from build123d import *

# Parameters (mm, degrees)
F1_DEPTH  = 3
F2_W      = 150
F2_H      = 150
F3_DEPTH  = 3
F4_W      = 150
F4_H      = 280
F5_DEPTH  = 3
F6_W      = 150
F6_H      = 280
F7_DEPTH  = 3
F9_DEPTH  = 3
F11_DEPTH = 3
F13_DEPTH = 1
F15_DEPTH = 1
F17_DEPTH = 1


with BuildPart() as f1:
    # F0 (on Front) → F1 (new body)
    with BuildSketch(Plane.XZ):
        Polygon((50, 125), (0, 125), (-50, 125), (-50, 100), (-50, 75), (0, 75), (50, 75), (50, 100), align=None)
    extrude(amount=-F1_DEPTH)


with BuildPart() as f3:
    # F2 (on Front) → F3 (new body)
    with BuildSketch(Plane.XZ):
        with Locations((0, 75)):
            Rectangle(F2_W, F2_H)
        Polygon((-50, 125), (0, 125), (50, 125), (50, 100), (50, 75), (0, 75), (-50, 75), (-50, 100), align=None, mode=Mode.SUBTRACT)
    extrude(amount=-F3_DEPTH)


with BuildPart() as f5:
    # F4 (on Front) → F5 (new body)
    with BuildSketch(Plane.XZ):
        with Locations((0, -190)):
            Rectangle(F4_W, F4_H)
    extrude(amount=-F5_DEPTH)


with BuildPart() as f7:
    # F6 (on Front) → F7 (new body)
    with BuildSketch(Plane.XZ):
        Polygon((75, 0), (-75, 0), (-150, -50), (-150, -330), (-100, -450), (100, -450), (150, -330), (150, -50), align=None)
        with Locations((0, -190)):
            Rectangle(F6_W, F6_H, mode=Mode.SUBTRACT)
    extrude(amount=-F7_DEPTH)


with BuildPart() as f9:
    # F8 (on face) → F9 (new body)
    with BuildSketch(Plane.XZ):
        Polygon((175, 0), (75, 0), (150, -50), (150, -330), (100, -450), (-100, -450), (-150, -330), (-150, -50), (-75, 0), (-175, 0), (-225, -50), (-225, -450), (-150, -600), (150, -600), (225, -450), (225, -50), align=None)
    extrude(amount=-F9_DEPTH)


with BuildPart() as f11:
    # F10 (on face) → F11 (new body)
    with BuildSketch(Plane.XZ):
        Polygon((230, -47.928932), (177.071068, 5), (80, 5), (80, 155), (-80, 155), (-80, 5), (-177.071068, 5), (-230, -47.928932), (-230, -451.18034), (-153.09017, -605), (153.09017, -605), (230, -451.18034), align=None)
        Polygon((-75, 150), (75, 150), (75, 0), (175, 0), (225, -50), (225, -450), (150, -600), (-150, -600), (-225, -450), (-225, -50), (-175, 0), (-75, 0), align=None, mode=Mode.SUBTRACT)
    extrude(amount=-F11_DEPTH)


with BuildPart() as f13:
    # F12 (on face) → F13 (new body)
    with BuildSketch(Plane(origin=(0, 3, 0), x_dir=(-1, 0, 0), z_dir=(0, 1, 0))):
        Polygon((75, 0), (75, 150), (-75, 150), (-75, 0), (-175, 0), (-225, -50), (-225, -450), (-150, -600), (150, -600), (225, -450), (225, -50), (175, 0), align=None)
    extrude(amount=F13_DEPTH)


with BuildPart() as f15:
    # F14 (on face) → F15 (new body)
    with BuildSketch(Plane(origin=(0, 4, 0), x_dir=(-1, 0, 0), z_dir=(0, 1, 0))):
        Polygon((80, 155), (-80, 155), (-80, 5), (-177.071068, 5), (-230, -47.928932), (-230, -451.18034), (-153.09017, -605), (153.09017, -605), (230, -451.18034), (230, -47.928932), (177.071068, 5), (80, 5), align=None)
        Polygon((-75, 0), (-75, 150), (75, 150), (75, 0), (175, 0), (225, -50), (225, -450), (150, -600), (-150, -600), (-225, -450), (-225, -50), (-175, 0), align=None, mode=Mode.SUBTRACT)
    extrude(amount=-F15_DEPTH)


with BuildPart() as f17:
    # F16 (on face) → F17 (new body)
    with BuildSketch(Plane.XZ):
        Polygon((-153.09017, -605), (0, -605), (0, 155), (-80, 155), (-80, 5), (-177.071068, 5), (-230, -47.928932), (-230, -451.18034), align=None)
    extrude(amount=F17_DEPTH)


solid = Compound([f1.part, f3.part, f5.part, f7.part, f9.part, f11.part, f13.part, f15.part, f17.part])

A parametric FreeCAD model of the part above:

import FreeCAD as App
import Part
import Sketcher

V = App.Vector
Q = App.Units.Quantity


def add_polygon(sketch, points):
    """Adds a closed chain of lines whose ends are joined by coincident constraints."""
    first, n = sketch.GeometryCount, len(points)
    for a, b in zip(points, points[1:] + points[:1]):
        sketch.addGeometry(Part.LineSegment(App.Vector(*a, 0), App.Vector(*b, 0)), False)
    for i in range(n):
        sketch.addConstraint(Sketcher.Constraint("Coincident", first + i, 2, first + (i + 1) % n, 1))

doc = App.newDocument("Part")
body = doc.addObject("PartDesign::Body", "Body")

sketch1 = body.newObject("Sketcher::SketchObject", "Sketch")
sketch1.AttachmentSupport = (doc.getObject("XZ_Plane"), [""])
sketch1.MapMode = "FlatFace"
add_polygon(sketch1, [(50, 125), (-50, 125), (-50, 75), (50, 75)])
sketch1.addConstraint(Sketcher.Constraint("Horizontal", 0))
sketch1.addConstraint(Sketcher.Constraint("Vertical", 1))
sketch1.addConstraint(Sketcher.Constraint("Horizontal", 2))
sketch1.addConstraint(Sketcher.Constraint("Vertical", 3))
sketch1.addConstraint(Sketcher.Constraint("DistanceX", 0, 2, 0, 1, 100.0))
sketch1.addConstraint(Sketcher.Constraint("DistanceY", 1, 2, 1, 1, 50.0))
sketch1.addConstraint(Sketcher.Constraint("DistanceX", 0, 2, -1, 1, 50.0))
sketch1.addConstraint(Sketcher.Constraint("DistanceY", -1, 1, 0, 2, 125.0))
pad1 = body.newObject("PartDesign::Pad", "Pad")
pad1.Profile = sketch1
pad1.Length = 3
pad1.Reversed = True
body2 = doc.addObject("PartDesign::Body", "Body001")

sketch2 = body2.newObject("Sketcher::SketchObject", "Sketch001")
sketch2.AttachmentSupport = (doc.getObject("XZ_Plane001"), [""])
sketch2.MapMode = "FlatFace"
add_polygon(sketch2, [(-75, 150), (-75, 0), (75, 0), (75, 150)])
add_polygon(sketch2, [(-50, 75), (-50, 125), (50, 125), (50, 75)])
sketch2.addConstraint(Sketcher.Constraint("Vertical", 0))
sketch2.addConstraint(Sketcher.Constraint("Horizontal", 1))
sketch2.addConstraint(Sketcher.Constraint("Vertical", 2))
sketch2.addConstraint(Sketcher.Constraint("Horizontal", 3))
sketch2.addConstraint(Sketcher.Constraint("Vertical", 4))
sketch2.addConstraint(Sketcher.Constraint("Horizontal", 5))
sketch2.addConstraint(Sketcher.Constraint("Vertical", 6))
sketch2.addConstraint(Sketcher.Constraint("Horizontal", 7))
sketch2.addConstraint(Sketcher.Constraint("Symmetric", 0, 2, 1, 2, -1, 1))
sketch2.addConstraint(Sketcher.Constraint("Equal", 3, 0))
sketch2.addConstraint(Sketcher.Constraint("DistanceX", 1, 1, 1, 2, 150.0))
sketch2.addConstraint(Sketcher.Constraint("DistanceX", 5, 1, 5, 2, 100.0))
sketch2.addConstraint(Sketcher.Constraint("DistanceY", 4, 1, 4, 2, 50.0))
sketch2.addConstraint(Sketcher.Constraint("DistanceX", 4, 2, -1, 1, 50.0))
sketch2.addConstraint(Sketcher.Constraint("DistanceY", -1, 1, 4, 2, 125.0))
pad2 = body2.newObject("PartDesign::Pad", "Pad001")
pad2.Profile = sketch2
pad2.Length = 3
pad2.Reversed = True
body3 = doc.addObject("PartDesign::Body", "Body002")

sketch3 = body3.newObject("Sketcher::SketchObject", "Sketch002")
sketch3.AttachmentSupport = (doc.getObject("XZ_Plane002"), [""])
sketch3.MapMode = "FlatFace"
add_polygon(sketch3, [(-75, -50), (-75, -330), (75, -330), (75, -50)])
sketch3.addConstraint(Sketcher.Constraint("Vertical", 0))
sketch3.addConstraint(Sketcher.Constraint("Horizontal", 1))
sketch3.addConstraint(Sketcher.Constraint("Vertical", 2))
sketch3.addConstraint(Sketcher.Constraint("Horizontal", 3))
sketch3.addConstraint(Sketcher.Constraint("DistanceX", 1, 1, 1, 2, 150.0))
sketch3.addConstraint(Sketcher.Constraint("DistanceY", 0, 2, 0, 1, 280.0))
sketch3.addConstraint(Sketcher.Constraint("DistanceX", 0, 2, -1, 1, 75.0))
sketch3.addConstraint(Sketcher.Constraint("DistanceY", 0, 2, -1, 1, 330.0))
pad3 = body3.newObject("PartDesign::Pad", "Pad002")
pad3.Profile = sketch3
pad3.Length = 3
pad3.Reversed = True
body4 = doc.addObject("PartDesign::Body", "Body003")

sketch4 = body4.newObject("Sketcher::SketchObject", "Sketch003")
sketch4.AttachmentSupport = (doc.getObject("XZ_Plane003"), [""])
sketch4.MapMode = "FlatFace"
add_polygon(sketch4, [(75, 0), (-75, 0), (-150, -50), (-150, -330), (-100, -450), (100, -450), (150, -330), (150, -50)])
add_polygon(sketch4, [(75, -330), (-75, -330), (-75, -50), (75, -50)])
sketch4.addConstraint(Sketcher.Constraint("Horizontal", 0))
sketch4.addConstraint(Sketcher.Constraint("Vertical", 2))
sketch4.addConstraint(Sketcher.Constraint("Horizontal", 4))
sketch4.addConstraint(Sketcher.Constraint("Vertical", 6))
sketch4.addConstraint(Sketcher.Constraint("Horizontal", 8))
sketch4.addConstraint(Sketcher.Constraint("Vertical", 9))
sketch4.addConstraint(Sketcher.Constraint("Horizontal", 10))
sketch4.addConstraint(Sketcher.Constraint("Vertical", 11))
sketch4.addConstraint(Sketcher.Constraint("Symmetric", 0, 2, 7, 2, -1, 1))
sketch4.addConstraint(Sketcher.Constraint("Symmetric", 2, 2, 5, 2, -2))
sketch4.addConstraint(Sketcher.Constraint("Horizontal", 1, 2, 6, 2))
sketch4.addConstraint(Sketcher.Constraint("Horizontal", 5, 2, 8, 2))
sketch4.addConstraint(Sketcher.Constraint("Horizontal", 6, 2, 9, 2))
sketch4.addConstraint(Sketcher.Constraint("Vertical", 0, 2, 8, 2))
sketch4.addConstraint(Sketcher.Constraint("Vertical", 7, 2, 10, 2))
sketch4.addConstraint(Sketcher.Constraint("Equal", 3, 5))
sketch4.addConstraint(Sketcher.Constraint("DistanceX", 0, 2, 0, 1, 150.0))
sketch4.addConstraint(Sketcher.Constraint("DistanceX", 4, 1, 4, 2, 200.0))
sketch4.addConstraint(Sketcher.Constraint("DistanceY", 2, 2, 2, 1, 280.0))
sketch4.addConstraint(Sketcher.Constraint("Distance", 3, 130.0))
sketch4.addConstraint(Sketcher.Constraint("DistanceX", 1, 2, -1, 1, 150.0))
sketch4.addConstraint(Sketcher.Constraint("DistanceY", 1, 2, -1, 1, 50.0))
pad4 = body4.newObject("PartDesign::Pad", "Pad003")
pad4.Profile = sketch4
pad4.Length = 3
pad4.Reversed = True
body5 = doc.addObject("PartDesign::Body", "Body004")

sketch5 = body5.newObject("Sketcher::SketchObject", "Sketch004")
sketch5.AttachmentSupport = (doc.getObject("XZ_Plane004"), [""])
sketch5.MapMode = "FlatFace"
add_polygon(sketch5, [(175, 0), (75, 0), (150, -50), (150, -330), (100, -450), (-100, -450), (-150, -330), (-150, -50), (-75, 0), (-175, 0), (-225, -50), (-225, -450), (-150, -600), (150, -600), (225, -450), (225, -50)])
sketch5.addConstraint(Sketcher.Constraint("Horizontal", 0))
sketch5.addConstraint(Sketcher.Constraint("Vertical", 2))
sketch5.addConstraint(Sketcher.Constraint("Horizontal", 4))
sketch5.addConstraint(Sketcher.Constraint("Vertical", 6))
sketch5.addConstraint(Sketcher.Constraint("Horizontal", 8))
sketch5.addConstraint(Sketcher.Constraint("Vertical", 10))
sketch5.addConstraint(Sketcher.Constraint("Horizontal", 12))
sketch5.addConstraint(Sketcher.Constraint("Vertical", 14))
sketch5.addConstraint(Sketcher.Constraint("Symmetric", 0, 2, 7, 2, -1, 1))
sketch5.addConstraint(Sketcher.Constraint("Symmetric", 2, 2, 5, 2, -2))
sketch5.addConstraint(Sketcher.Constraint("Symmetric", 10, 2, 13, 2, -2))
sketch5.addConstraint(Sketcher.Constraint("Symmetric", 8, 2, 15, 2, -2))
sketch5.addConstraint(Sketcher.Constraint("Perpendicular", 9, 15))
sketch5.addConstraint(Sketcher.Constraint("Horizontal", 1, 2, 6, 2))
sketch5.addConstraint(Sketcher.Constraint("Horizontal", 6, 2, 9, 2))
sketch5.addConstraint(Sketcher.Constraint("Horizontal", 4, 2, 10, 2))
sketch5.addConstraint(Sketcher.Constraint("Horizontal", 9, 2, 14, 2))
sketch5.addConstraint(Sketcher.Constraint("Vertical", 6, 2, 11, 2))
sketch5.addConstraint(Sketcher.Constraint("Vertical", 2, 2, 12, 2))
sketch5.addConstraint(Sketcher.Constraint("Equal", 3, 5))
sketch5.addConstraint(Sketcher.Constraint("DistanceX", 0, 2, 0, 1, 100.0))
sketch5.addConstraint(Sketcher.Constraint("DistanceX", 4, 2, 4, 1, 200.0))
sketch5.addConstraint(Sketcher.Constraint("DistanceX", 12, 1, 12, 2, 300.0))
sketch5.addConstraint(Sketcher.Constraint("DistanceY", 2, 2, 2, 1, 280.0))
sketch5.addConstraint(Sketcher.Constraint("DistanceY", 10, 2, 10, 1, 400.0))
sketch5.addConstraint(Sketcher.Constraint("DistanceX", -1, 1, 0, 2, 75.0))
sketch5.addConstraint(Sketcher.Constraint("DistanceY", 1, 2, -1, 1, 50.0))
sketch5.addConstraint(Sketcher.Constraint("DistanceY", 11, 2, -1, 1, 600.0))
pad5 = body5.newObject("PartDesign::Pad", "Pad004")
pad5.Profile = sketch5
pad5.Length = 3
pad5.Reversed = True
body6 = doc.addObject("PartDesign::Body", "Body005")

sketch6 = body6.newObject("Sketcher::SketchObject", "Sketch005")
sketch6.AttachmentSupport = (doc.getObject("XZ_Plane005"), [""])
sketch6.MapMode = "FlatFace"
add_polygon(sketch6, [(230, -48), (177, 5), (80, 5), (80, 155), (-80, 155), (-80, 5), (-177, 5), (-230, -48), (-230, -451), (-153, -605), (153, -605), (230, -451)])
add_polygon(sketch6, [(-75, 0), (-75, 150), (75, 150), (75, 0), (175, 0), (225, -50), (225, -450), (150, -600), (-150, -600), (-225, -450), (-225, -50), (-175, 0)])
sketch6.addConstraint(Sketcher.Constraint("Horizontal", 1))
sketch6.addConstraint(Sketcher.Constraint("Vertical", 2))
sketch6.addConstraint(Sketcher.Constraint("Horizontal", 3))
sketch6.addConstraint(Sketcher.Constraint("Vertical", 4))
sketch6.addConstraint(Sketcher.Constraint("Horizontal", 5))
sketch6.addConstraint(Sketcher.Constraint("Vertical", 7))
sketch6.addConstraint(Sketcher.Constraint("Horizontal", 9))
sketch6.addConstraint(Sketcher.Constraint("Vertical", 11))
sketch6.addConstraint(Sketcher.Constraint("Vertical", 12))
sketch6.addConstraint(Sketcher.Constraint("Horizontal", 13))
sketch6.addConstraint(Sketcher.Constraint("Vertical", 14))
sketch6.addConstraint(Sketcher.Constraint("Horizontal", 15))
sketch6.addConstraint(Sketcher.Constraint("Vertical", 17))
sketch6.addConstraint(Sketcher.Constraint("Horizontal", 19))
sketch6.addConstraint(Sketcher.Constraint("Vertical", 21))
sketch6.addConstraint(Sketcher.Constraint("Horizontal", 23))
sketch6.addConstraint(Sketcher.Constraint("Symmetric", 15, 2, 22, 2, -1, 1))
sketch6.addConstraint(Sketcher.Constraint("Symmetric", 1, 2, 4, 2, -2))
sketch6.addConstraint(Sketcher.Constraint("Symmetric", 7, 2, 10, 2, -2))
sketch6.addConstraint(Sketcher.Constraint("Symmetric", 17, 2, 20, 2, -2))
sketch6.addConstraint(Sketcher.Constraint("Symmetric", 14, 2, 23, 2, -2))
sketch6.addConstraint(Sketcher.Constraint("Perpendicular", 0, 6))
sketch6.addConstraint(Sketcher.Constraint("Perpendicular", 6, 16))
sketch6.addConstraint(Sketcher.Constraint("Parallel", 10, 18))
sketch6.addConstraint(Sketcher.Constraint("Parallel", 8, 20))
sketch6.addConstraint(Sketcher.Constraint("Perpendicular", 16, 22))
sketch6.addConstraint(Sketcher.Constraint("Horizontal", 6, 2, 11, 2))
sketch6.addConstraint(Sketcher.Constraint("Horizontal", 16, 2, 21, 2))
sketch6.addConstraint(Sketcher.Constraint("Equal", 13, 2))
sketch6.addConstraint(Sketcher.Constraint("Equal", 4, 12))
sketch6.addConstraint(Sketcher.Constraint("Equal", 8, 10))
sketch6.addConstraint(Sketcher.Constraint("DistanceX", 3, 2, 3, 1, 160.0))
sketch6.addConstraint(Sketcher.Constraint("DistanceX", 13, 1, 13, 2, 150.0))
sketch6.addConstraint(Sketcher.Constraint("DistanceX", 15, 1, 15, 2, 100.0))
sketch6.addConstraint(Sketcher.Constraint("DistanceX", 19, 2, 19, 1, 300.0))
sketch6.addConstraint(Sketcher.Constraint("DistanceY", 17, 2, 17, 1, 400.0))
sketch6.addConstraint(Sketcher.Constraint("DistanceY", -1, 1, 0, 2, 5.0))
sketch6.addConstraint(Sketcher.Constraint("DistanceX", 6, 2, -1, 1, 230.0))
sketch6.addConstraint(Sketcher.Constraint("DistanceY", 8, 2, -1, 1, 605.0))
sketch6.addConstraint(Sketcher.Constraint("DistanceX", -1, 1, 16, 2, 225.0))
sketch6.addConstraint(Sketcher.Constraint("DistanceY", 18, 2, -1, 1, 600.0))
sketch6.addConstraint(Sketcher.Constraint("DistanceX", 9, 1, 9, 2, 306.18034))
sketch6.addConstraint(Sketcher.Constraint("DistanceX", 1, 2, 1, 1, 97.071068))
pad6 = body6.newObject("PartDesign::Pad", "Pad005")
pad6.Profile = sketch6
pad6.Length = 3
pad6.Reversed = True
body7 = doc.addObject("PartDesign::Body", "Body006")

sketch7 = body7.newObject("Sketcher::SketchObject", "Sketch006")
sketch7.AttachmentSupport = (doc.getObject("XZ_Plane006"), [""])
sketch7.MapMode = "FlatFace"
sketch7.AttachmentOffset = App.Placement(V(0, 0, -3), App.Rotation())
add_polygon(sketch7, [(-75, 0), (-75, 150), (75, 150), (75, 0), (175, 0), (225, -50), (225, -450), (150, -600), (-150, -600), (-225, -450), (-225, -50), (-175, 0)])
sketch7.addConstraint(Sketcher.Constraint("Vertical", 0))
sketch7.addConstraint(Sketcher.Constraint("Horizontal", 1))
sketch7.addConstraint(Sketcher.Constraint("Vertical", 2))
sketch7.addConstraint(Sketcher.Constraint("Horizontal", 3))
sketch7.addConstraint(Sketcher.Constraint("Vertical", 5))
sketch7.addConstraint(Sketcher.Constraint("Horizontal", 7))
sketch7.addConstraint(Sketcher.Constraint("Vertical", 9))
sketch7.addConstraint(Sketcher.Constraint("Horizontal", 11))
sketch7.addConstraint(Sketcher.Constraint("Symmetric", 3, 2, 10, 2, -1, 1))
sketch7.addConstraint(Sketcher.Constraint("Symmetric", 5, 2, 8, 2, -2))
sketch7.addConstraint(Sketcher.Constraint("Symmetric", 2, 2, 11, 2, -2))
sketch7.addConstraint(Sketcher.Constraint("Perpendicular", 4, 10))
sketch7.addConstraint(Sketcher.Constraint("Horizontal", 4, 2, 9, 2))
sketch7.addConstraint(Sketcher.Constraint("Equal", 1, 0))
sketch7.addConstraint(Sketcher.Constraint("Equal", 6, 8))
sketch7.addConstraint(Sketcher.Constraint("DistanceX", 1, 1, 1, 2, 150.0))
sketch7.addConstraint(Sketcher.Constraint("DistanceX", 3, 1, 3, 2, 100.0))
sketch7.addConstraint(Sketcher.Constraint("DistanceX", 7, 2, 7, 1, 300.0))
sketch7.addConstraint(Sketcher.Constraint("DistanceY", 5, 2, 5, 1, 400.0))
sketch7.addConstraint(Sketcher.Constraint("DistanceX", -1, 1, 4, 2, 225.0))
sketch7.addConstraint(Sketcher.Constraint("DistanceY", 6, 2, -1, 1, 600.0))
pad7 = body7.newObject("PartDesign::Pad", "Pad006")
pad7.Profile = sketch7
pad7.Length = 1
pad7.Reversed = True
body8 = doc.addObject("PartDesign::Body", "Body007")

sketch8 = body8.newObject("Sketcher::SketchObject", "Sketch007")
sketch8.AttachmentSupport = (doc.getObject("XZ_Plane007"), [""])
sketch8.MapMode = "FlatFace"
sketch8.AttachmentOffset = App.Placement(V(0, 0, -4), App.Rotation())
add_polygon(sketch8, [(-80, 155), (80, 155), (80, 5), (177, 5), (230, -48), (230, -451), (153, -605), (-153, -605), (-230, -451), (-230, -48), (-177, 5), (-80, 5)])
add_polygon(sketch8, [(175, 0), (75, 0), (75, 150), (-75, 150), (-75, 0), (-175, 0), (-225, -50), (-225, -450), (-150, -600), (150, -600), (225, -450), (225, -50)])
sketch8.addConstraint(Sketcher.Constraint("Horizontal", 0))
sketch8.addConstraint(Sketcher.Constraint("Vertical", 1))
sketch8.addConstraint(Sketcher.Constraint("Horizontal", 2))
sketch8.addConstraint(Sketcher.Constraint("Vertical", 4))
sketch8.addConstraint(Sketcher.Constraint("Horizontal", 6))
sketch8.addConstraint(Sketcher.Constraint("Vertical", 8))
sketch8.addConstraint(Sketcher.Constraint("Horizontal", 10))
sketch8.addConstraint(Sketcher.Constraint("Vertical", 11))
sketch8.addConstraint(Sketcher.Constraint("Horizontal", 12))
sketch8.addConstraint(Sketcher.Constraint("Vertical", 13))
sketch8.addConstraint(Sketcher.Constraint("Horizontal", 14))
sketch8.addConstraint(Sketcher.Constraint("Vertical", 15))
sketch8.addConstraint(Sketcher.Constraint("Horizontal", 16))
sketch8.addConstraint(Sketcher.Constraint("Vertical", 18))
sketch8.addConstraint(Sketcher.Constraint("Horizontal", 20))
sketch8.addConstraint(Sketcher.Constraint("Vertical", 22))
sketch8.addConstraint(Sketcher.Constraint("Symmetric", 12, 2, 15, 2, -1, 1))
sketch8.addConstraint(Sketcher.Constraint("Symmetric", 4, 2, 7, 2, -2))
sketch8.addConstraint(Sketcher.Constraint("Symmetric", 2, 2, 9, 2, -2))
sketch8.addConstraint(Sketcher.Constraint("Symmetric", 18, 2, 21, 2, -2))
sketch8.addConstraint(Sketcher.Constraint("Symmetric", 16, 2, 23, 2, -2))
sketch8.addConstraint(Sketcher.Constraint("Perpendicular", 3, 9))
sketch8.addConstraint(Sketcher.Constraint("Parallel", 9, 17))
sketch8.addConstraint(Sketcher.Constraint("Parallel", 7, 19))
sketch8.addConstraint(Sketcher.Constraint("Parallel", 5, 21))
sketch8.addConstraint(Sketcher.Constraint("Perpendicular", 17, 23))
sketch8.addConstraint(Sketcher.Constraint("Horizontal", 3, 2, 8, 2))
sketch8.addConstraint(Sketcher.Constraint("Equal", 2, 10))
sketch8.addConstraint(Sketcher.Constraint("Equal", 14, 1))
sketch8.addConstraint(Sketcher.Constraint("Equal", 11, 13))
sketch8.addConstraint(Sketcher.Constraint("Equal", 5, 7))
sketch8.addConstraint(Sketcher.Constraint("DistanceX", 0, 1, 0, 2, 160.0))
sketch8.addConstraint(Sketcher.Constraint("DistanceX", 12, 2, 12, 1, 100.0))
sketch8.addConstraint(Sketcher.Constraint("DistanceX", 14, 2, 14, 1, 150.0))
sketch8.addConstraint(Sketcher.Constraint("DistanceX", 20, 1, 20, 2, 300.0))
sketch8.addConstraint(Sketcher.Constraint("DistanceY", 18, 2, 18, 1, 400.0))
sketch8.addConstraint(Sketcher.Constraint("DistanceY", -1, 1, 0, 2, 155.0))
sketch8.addConstraint(Sketcher.Constraint("DistanceX", -1, 1, 3, 2, 230.0))
sketch8.addConstraint(Sketcher.Constraint("DistanceY", 5, 2, -1, 1, 605.0))
sketch8.addConstraint(Sketcher.Constraint("DistanceX", 17, 2, -1, 1, 225.0))
sketch8.addConstraint(Sketcher.Constraint("DistanceY", 19, 2, -1, 1, 600.0))
sketch8.addConstraint(Sketcher.Constraint("DistanceX", 6, 2, 6, 1, 306.18034))
sketch8.addConstraint(Sketcher.Constraint("DistanceX", 2, 1, 2, 2, 97.071068))
pad8 = body8.newObject("PartDesign::Pad", "Pad007")
pad8.Profile = sketch8
pad8.Length = 1
body9 = doc.addObject("PartDesign::Body", "Body008")

sketch9 = body9.newObject("Sketcher::SketchObject", "Sketch008")
sketch9.AttachmentSupport = (doc.getObject("XZ_Plane008"), [""])
sketch9.MapMode = "FlatFace"
add_polygon(sketch9, [(-153, -605), (0, -605), (0, 155), (-80, 155), (-80, 5), (-177, 5), (-230, -48), (-230, -451)])
sketch9.addConstraint(Sketcher.Constraint("Horizontal", 0))
sketch9.addConstraint(Sketcher.Constraint("Vertical", 1))
sketch9.addConstraint(Sketcher.Constraint("Horizontal", 2))
sketch9.addConstraint(Sketcher.Constraint("Vertical", 3))
sketch9.addConstraint(Sketcher.Constraint("Horizontal", 4))
sketch9.addConstraint(Sketcher.Constraint("Vertical", 6))
sketch9.addConstraint(Sketcher.Constraint("PointOnObject", 0, 2, -2))
sketch9.addConstraint(Sketcher.Constraint("DistanceX", 2, 2, 2, 1, 80.0))
sketch9.addConstraint(Sketcher.Constraint("DistanceY", 1, 1, 1, 2, 760.0))
sketch9.addConstraint(Sketcher.Constraint("DistanceY", 3, 2, 3, 1, 150.0))
sketch9.addConstraint(Sketcher.Constraint("Angle", 5, Q("-135 deg")))
sketch9.addConstraint(Sketcher.Constraint("DistanceY", 0, 2, -1, 1, 605.0))
sketch9.addConstraint(Sketcher.Constraint("DistanceX", 5, 2, -1, 1, 230.0))
sketch9.addConstraint(Sketcher.Constraint("DistanceX", 0, 1, 0, 2, 153.09017))
sketch9.addConstraint(Sketcher.Constraint("Distance", 7, 171.975608))
sketch9.addConstraint(Sketcher.Constraint("DistanceX", 4, 2, 4, 1, 97.071068))
pad9 = body9.newObject("PartDesign::Pad", "Pad008")
pad9.Profile = sketch9
pad9.Length = 1

doc.recompute()
